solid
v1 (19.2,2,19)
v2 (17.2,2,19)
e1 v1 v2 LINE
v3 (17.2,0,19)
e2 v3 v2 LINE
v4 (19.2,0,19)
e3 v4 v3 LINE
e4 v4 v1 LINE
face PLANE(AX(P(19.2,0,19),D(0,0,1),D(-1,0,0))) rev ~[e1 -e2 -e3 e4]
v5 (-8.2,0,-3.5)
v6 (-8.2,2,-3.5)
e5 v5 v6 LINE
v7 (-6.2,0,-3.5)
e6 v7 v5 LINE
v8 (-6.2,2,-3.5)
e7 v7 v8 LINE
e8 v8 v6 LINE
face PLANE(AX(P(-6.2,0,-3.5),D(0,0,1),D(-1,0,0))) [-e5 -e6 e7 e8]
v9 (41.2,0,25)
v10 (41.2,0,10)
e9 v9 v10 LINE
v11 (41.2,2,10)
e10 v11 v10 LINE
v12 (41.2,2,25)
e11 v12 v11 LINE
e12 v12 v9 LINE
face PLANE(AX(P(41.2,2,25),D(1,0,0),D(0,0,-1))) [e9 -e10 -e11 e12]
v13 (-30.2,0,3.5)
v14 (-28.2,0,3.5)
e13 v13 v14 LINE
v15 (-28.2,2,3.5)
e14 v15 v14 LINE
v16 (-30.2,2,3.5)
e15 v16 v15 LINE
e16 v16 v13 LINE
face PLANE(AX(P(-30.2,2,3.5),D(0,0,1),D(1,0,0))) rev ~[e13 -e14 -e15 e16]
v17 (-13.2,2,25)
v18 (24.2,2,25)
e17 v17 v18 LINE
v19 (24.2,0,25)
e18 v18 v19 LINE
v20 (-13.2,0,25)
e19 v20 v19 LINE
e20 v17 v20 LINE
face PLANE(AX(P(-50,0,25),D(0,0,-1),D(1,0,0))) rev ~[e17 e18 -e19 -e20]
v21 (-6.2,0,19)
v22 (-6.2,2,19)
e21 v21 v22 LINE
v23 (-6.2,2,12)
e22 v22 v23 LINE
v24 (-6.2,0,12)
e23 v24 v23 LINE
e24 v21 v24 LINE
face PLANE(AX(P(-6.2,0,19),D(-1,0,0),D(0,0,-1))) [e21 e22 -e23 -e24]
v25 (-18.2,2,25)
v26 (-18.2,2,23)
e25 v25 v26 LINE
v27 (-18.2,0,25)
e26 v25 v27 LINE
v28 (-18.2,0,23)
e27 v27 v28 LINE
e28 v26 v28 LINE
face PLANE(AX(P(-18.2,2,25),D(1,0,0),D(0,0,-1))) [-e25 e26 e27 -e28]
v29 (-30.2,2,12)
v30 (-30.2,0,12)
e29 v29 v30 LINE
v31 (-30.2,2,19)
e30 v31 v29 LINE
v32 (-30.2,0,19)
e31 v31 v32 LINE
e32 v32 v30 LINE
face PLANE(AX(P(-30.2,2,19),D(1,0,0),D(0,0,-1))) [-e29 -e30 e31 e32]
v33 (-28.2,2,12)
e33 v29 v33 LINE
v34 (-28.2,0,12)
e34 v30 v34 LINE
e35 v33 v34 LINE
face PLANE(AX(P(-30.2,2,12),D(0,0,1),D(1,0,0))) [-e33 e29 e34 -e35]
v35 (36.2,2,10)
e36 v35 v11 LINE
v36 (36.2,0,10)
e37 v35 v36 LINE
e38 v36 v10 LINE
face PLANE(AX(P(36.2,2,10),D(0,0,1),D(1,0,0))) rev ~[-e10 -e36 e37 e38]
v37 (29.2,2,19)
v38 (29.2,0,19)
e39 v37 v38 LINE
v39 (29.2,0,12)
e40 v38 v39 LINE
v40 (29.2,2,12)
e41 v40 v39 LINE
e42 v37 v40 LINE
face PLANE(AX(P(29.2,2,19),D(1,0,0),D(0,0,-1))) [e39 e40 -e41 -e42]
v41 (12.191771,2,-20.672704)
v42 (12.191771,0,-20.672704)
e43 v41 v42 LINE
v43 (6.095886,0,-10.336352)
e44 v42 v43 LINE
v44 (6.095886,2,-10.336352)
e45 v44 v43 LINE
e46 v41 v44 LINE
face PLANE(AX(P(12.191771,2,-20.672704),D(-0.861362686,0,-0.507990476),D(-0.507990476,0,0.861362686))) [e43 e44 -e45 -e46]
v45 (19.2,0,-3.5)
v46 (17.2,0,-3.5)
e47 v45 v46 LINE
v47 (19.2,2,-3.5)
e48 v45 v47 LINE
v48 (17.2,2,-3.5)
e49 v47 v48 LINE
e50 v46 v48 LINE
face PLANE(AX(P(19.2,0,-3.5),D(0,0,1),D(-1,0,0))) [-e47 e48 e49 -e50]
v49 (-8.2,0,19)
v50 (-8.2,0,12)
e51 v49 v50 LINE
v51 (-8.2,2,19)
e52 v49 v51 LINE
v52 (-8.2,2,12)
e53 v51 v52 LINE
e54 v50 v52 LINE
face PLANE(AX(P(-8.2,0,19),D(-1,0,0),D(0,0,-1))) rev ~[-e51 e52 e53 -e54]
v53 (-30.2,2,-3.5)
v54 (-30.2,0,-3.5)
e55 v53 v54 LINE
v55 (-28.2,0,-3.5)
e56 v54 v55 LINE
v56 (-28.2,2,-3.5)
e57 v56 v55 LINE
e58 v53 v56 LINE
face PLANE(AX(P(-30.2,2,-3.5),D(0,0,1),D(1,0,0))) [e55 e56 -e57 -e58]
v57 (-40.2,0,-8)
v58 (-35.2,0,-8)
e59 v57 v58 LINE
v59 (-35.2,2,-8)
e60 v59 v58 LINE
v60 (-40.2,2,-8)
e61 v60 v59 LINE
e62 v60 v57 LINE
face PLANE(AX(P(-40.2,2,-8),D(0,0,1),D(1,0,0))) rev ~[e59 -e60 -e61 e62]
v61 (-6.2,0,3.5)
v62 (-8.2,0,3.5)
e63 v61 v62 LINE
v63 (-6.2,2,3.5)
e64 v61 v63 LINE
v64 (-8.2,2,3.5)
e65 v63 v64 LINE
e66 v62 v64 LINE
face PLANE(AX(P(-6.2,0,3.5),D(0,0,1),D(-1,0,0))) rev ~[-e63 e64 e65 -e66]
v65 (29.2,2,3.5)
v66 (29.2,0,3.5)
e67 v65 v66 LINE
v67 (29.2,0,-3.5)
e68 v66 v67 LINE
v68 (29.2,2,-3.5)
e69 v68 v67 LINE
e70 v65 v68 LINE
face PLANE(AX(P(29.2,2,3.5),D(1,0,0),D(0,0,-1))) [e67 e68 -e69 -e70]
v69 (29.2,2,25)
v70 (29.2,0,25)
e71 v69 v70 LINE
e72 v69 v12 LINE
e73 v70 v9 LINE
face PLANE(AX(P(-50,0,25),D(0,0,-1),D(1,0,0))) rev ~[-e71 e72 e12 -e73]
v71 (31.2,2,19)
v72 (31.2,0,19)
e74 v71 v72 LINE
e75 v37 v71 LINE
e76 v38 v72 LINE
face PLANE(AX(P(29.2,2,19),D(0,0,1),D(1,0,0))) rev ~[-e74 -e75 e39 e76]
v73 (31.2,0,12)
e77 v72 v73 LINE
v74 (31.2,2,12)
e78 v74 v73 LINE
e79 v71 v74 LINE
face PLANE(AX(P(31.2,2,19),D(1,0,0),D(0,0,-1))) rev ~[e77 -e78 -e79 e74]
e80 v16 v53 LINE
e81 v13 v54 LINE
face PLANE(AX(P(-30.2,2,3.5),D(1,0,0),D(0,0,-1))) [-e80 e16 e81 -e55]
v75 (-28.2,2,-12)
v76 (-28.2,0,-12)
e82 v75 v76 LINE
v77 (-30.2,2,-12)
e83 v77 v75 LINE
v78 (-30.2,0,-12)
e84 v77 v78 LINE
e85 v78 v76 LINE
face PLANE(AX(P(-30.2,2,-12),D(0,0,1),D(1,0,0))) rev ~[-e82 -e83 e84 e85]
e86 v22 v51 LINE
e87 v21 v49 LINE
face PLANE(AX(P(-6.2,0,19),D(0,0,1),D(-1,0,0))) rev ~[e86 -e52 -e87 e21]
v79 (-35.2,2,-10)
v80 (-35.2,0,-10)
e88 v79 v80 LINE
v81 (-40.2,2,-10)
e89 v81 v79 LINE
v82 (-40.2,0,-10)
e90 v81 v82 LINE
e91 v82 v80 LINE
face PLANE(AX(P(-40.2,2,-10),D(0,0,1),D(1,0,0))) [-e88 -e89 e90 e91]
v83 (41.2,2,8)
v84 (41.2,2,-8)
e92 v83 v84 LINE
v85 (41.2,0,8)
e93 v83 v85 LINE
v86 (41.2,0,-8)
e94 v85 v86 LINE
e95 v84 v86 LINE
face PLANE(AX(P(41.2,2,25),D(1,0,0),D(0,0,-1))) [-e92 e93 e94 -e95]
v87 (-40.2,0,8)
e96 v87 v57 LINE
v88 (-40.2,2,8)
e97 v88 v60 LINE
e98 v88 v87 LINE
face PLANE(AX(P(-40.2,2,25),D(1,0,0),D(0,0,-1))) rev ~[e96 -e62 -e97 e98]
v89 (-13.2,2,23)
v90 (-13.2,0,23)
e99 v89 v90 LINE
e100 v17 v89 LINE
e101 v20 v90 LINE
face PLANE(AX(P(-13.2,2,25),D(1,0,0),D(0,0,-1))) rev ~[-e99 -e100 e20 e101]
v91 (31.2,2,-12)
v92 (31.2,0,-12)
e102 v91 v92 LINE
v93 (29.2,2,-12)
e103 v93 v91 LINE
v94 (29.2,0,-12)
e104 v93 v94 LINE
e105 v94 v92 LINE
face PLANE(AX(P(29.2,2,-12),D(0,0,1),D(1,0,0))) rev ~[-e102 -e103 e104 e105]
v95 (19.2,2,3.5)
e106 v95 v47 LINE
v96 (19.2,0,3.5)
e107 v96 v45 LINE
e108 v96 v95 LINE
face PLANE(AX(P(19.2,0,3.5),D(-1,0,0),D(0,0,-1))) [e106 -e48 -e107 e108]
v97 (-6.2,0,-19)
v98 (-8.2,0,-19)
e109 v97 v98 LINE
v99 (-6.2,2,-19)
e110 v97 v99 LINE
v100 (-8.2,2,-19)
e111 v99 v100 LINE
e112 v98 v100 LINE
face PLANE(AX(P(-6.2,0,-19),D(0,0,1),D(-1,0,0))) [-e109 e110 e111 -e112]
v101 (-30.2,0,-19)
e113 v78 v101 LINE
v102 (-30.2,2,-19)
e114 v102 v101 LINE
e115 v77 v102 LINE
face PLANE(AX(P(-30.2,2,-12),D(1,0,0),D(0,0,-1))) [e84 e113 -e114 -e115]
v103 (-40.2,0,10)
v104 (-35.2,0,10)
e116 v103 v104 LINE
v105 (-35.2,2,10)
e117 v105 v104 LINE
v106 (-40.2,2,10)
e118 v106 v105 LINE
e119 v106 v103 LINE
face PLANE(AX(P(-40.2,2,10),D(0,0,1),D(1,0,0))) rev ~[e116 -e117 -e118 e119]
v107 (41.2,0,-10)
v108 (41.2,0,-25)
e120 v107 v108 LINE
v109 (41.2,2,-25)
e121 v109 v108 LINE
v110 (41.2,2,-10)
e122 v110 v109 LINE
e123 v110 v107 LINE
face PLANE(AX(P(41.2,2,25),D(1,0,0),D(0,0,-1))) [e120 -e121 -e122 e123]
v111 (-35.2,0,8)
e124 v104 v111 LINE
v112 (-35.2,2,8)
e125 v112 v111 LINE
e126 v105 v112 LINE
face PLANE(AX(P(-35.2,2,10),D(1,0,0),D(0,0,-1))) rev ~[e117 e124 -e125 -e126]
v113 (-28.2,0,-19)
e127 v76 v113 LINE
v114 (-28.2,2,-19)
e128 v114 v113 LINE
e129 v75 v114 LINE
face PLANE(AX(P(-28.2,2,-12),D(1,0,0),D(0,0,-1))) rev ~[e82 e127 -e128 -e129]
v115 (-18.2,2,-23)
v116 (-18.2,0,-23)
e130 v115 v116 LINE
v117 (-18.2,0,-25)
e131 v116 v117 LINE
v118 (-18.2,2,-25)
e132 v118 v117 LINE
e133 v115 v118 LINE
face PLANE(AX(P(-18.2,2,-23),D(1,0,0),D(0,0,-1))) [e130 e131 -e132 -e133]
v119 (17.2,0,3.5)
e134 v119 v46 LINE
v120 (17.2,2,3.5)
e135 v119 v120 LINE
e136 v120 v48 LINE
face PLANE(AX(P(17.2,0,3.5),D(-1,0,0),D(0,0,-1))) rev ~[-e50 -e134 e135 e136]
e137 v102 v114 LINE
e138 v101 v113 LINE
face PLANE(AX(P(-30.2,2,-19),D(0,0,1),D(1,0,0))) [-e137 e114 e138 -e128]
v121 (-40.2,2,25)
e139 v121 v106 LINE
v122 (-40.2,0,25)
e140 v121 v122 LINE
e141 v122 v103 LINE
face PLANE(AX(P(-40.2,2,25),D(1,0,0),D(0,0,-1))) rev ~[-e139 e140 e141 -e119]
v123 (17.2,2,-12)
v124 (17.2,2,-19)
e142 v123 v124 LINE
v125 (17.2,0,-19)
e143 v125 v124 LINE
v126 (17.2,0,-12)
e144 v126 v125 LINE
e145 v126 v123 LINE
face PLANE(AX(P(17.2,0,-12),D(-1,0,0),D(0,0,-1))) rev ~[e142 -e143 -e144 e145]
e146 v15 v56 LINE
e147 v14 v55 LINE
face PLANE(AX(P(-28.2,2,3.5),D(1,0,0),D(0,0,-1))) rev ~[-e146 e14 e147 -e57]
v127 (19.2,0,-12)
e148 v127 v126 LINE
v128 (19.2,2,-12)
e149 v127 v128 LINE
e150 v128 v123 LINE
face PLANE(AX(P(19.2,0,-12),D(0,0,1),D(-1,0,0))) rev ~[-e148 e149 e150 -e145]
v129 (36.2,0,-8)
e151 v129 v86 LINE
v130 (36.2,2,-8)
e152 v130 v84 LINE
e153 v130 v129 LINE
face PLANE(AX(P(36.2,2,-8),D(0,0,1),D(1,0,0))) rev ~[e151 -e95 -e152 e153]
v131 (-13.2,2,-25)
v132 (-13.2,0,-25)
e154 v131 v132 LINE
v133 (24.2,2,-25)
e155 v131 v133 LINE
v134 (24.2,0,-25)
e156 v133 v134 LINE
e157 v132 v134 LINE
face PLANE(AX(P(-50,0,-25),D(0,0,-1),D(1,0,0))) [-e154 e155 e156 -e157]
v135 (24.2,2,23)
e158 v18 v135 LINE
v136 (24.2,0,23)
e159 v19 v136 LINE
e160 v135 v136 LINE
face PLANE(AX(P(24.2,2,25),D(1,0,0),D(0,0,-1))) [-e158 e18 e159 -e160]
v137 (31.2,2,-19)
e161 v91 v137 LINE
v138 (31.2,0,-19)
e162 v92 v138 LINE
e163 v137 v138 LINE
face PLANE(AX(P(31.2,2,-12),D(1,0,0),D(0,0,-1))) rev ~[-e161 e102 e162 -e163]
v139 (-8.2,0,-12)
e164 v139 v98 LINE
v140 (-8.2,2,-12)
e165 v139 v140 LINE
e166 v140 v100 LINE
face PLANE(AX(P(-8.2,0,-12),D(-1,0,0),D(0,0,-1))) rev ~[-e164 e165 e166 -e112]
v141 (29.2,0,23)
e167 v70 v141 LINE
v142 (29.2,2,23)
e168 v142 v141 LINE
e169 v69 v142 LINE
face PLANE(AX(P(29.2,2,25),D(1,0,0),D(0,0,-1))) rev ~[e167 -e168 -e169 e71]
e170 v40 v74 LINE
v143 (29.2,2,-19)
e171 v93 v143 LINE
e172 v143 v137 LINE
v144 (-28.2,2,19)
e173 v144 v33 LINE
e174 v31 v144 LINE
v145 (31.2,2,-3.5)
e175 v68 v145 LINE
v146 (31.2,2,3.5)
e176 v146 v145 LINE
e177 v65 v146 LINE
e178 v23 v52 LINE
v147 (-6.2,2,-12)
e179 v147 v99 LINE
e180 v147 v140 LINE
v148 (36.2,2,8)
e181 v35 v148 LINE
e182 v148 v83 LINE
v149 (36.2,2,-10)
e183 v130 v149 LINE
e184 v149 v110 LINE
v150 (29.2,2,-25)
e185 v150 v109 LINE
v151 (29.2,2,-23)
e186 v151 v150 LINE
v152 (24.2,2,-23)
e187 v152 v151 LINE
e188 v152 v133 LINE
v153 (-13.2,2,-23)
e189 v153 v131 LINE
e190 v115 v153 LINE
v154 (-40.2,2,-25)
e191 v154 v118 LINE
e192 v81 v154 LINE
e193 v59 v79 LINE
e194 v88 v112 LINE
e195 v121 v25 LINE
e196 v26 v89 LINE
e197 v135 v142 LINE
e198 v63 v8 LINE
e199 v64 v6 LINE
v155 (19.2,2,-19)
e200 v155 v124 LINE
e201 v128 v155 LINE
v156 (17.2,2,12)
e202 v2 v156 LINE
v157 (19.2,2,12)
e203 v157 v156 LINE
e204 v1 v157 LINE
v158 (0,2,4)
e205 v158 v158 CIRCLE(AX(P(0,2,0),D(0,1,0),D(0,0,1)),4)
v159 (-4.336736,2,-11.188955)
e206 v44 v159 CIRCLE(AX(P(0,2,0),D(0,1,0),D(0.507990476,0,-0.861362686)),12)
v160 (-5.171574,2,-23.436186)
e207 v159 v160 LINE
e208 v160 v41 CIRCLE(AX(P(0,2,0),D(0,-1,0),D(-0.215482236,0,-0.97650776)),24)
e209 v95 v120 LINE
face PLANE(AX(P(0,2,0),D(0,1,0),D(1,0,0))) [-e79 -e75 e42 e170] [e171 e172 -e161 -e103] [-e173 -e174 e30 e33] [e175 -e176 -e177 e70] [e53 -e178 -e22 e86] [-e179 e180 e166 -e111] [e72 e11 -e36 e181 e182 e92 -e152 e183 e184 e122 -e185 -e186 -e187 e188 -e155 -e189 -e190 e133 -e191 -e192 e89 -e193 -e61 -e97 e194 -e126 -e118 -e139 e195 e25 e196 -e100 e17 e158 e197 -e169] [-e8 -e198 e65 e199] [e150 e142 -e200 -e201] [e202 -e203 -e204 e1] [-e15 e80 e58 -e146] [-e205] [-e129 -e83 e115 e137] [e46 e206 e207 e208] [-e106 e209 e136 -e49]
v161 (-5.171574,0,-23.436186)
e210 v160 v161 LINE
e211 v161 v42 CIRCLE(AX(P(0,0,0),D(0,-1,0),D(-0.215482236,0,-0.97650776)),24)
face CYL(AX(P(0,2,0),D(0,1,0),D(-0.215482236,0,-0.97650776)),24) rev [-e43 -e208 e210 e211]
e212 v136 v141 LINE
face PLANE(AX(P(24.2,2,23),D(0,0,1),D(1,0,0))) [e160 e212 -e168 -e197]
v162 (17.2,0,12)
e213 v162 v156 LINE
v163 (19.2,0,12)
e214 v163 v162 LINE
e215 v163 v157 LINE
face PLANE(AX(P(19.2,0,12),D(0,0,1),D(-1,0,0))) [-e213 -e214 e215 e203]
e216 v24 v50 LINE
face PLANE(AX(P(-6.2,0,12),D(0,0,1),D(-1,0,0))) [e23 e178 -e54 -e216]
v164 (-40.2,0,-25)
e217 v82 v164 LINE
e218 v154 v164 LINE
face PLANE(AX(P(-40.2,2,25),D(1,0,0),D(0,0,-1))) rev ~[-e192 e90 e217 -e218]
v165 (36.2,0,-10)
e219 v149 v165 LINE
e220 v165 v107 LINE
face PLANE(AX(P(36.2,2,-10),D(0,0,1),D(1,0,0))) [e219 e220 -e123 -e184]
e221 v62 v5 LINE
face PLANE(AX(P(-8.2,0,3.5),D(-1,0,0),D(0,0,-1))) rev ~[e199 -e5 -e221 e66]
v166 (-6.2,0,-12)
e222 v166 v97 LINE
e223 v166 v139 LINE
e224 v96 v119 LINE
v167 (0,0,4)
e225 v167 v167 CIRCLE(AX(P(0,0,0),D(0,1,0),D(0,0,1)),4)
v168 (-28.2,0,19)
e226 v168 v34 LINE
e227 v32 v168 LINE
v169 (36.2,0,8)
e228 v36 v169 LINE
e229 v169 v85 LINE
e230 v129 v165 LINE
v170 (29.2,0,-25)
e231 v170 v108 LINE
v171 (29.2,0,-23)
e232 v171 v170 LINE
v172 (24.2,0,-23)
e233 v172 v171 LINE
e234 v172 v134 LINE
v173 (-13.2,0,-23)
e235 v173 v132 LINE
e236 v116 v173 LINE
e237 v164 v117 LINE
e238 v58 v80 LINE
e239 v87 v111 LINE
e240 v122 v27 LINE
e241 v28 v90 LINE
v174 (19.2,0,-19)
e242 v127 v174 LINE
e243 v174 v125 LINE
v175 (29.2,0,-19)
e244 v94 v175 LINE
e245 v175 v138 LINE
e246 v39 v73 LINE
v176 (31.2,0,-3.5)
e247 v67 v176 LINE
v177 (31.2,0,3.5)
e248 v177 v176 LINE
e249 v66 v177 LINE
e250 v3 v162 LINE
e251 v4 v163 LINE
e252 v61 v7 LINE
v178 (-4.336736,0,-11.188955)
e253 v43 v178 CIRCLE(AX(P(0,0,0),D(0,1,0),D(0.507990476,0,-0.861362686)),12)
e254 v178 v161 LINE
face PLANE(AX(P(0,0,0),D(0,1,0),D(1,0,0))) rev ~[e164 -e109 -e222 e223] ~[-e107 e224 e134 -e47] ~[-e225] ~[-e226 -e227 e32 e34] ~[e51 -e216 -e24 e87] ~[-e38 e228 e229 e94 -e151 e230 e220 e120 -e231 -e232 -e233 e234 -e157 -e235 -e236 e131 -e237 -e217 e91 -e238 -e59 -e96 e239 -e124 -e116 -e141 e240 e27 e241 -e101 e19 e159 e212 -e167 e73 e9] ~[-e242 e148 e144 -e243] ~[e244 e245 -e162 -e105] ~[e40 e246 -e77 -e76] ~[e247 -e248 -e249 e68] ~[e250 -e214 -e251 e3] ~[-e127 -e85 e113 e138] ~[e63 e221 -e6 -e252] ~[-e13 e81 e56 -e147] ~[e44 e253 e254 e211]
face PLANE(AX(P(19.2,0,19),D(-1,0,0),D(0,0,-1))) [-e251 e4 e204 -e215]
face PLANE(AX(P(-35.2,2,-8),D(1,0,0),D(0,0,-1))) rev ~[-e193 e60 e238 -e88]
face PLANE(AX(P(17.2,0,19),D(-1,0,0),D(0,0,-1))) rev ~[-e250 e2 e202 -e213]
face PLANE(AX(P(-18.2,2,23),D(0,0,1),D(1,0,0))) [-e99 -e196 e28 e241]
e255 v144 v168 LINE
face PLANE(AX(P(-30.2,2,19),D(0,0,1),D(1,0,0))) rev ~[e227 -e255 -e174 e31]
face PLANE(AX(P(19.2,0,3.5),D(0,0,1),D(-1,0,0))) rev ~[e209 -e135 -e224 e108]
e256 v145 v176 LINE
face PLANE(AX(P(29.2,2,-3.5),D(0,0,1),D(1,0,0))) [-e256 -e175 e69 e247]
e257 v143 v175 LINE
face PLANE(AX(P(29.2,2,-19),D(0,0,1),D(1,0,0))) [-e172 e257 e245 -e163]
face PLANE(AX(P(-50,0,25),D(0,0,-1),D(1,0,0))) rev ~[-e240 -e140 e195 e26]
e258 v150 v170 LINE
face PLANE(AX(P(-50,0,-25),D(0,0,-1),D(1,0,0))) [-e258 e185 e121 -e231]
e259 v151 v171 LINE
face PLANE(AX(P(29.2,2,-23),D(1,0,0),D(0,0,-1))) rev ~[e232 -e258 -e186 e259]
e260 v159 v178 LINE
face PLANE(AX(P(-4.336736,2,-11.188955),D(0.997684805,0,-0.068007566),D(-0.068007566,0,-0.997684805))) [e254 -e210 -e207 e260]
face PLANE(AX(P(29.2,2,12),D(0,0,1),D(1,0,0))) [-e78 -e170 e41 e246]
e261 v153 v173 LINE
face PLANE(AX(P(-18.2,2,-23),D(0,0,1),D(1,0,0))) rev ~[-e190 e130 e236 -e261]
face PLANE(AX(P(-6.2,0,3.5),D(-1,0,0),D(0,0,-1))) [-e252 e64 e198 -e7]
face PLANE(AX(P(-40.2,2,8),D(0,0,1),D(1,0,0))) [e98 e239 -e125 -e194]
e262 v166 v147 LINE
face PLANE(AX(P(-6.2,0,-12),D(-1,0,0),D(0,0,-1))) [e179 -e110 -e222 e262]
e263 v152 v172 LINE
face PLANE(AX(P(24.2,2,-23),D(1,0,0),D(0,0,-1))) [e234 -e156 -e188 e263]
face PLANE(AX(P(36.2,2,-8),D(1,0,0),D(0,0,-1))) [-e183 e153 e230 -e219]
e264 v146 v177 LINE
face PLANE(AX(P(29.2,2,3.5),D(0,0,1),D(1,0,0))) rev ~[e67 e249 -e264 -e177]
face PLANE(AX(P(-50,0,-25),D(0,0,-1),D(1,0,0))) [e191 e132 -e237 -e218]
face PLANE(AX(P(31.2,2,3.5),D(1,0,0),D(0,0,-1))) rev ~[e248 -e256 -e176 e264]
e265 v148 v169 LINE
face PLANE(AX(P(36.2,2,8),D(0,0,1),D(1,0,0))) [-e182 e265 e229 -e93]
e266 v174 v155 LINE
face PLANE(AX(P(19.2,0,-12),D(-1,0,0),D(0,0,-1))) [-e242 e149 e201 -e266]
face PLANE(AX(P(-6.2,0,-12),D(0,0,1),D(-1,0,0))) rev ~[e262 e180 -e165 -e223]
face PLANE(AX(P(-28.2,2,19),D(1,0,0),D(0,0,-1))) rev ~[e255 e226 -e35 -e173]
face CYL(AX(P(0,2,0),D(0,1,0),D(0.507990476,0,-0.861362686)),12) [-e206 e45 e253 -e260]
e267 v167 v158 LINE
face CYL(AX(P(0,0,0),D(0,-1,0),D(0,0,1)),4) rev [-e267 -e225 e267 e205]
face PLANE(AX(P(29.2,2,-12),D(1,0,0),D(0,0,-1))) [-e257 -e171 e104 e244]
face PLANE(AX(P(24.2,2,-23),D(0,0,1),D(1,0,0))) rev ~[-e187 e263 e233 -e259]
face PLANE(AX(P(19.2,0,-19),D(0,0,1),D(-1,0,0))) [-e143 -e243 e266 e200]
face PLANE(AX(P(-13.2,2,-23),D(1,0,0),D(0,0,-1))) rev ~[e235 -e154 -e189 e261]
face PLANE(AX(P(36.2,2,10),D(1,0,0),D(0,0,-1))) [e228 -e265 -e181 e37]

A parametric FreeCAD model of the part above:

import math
import FreeCAD as App
import Part
import Sketcher

V = App.Vector
Q = App.Units.Quantity

doc = App.newDocument("Part")
body = doc.addObject("PartDesign::Body", "Body")

# Sketch on XZ plane
sketch1 = body.newObject("Sketcher::SketchObject", "Sketch")
sketch1.AttachmentSupport = (doc.getObject("XZ_Plane"), [""])
sketch1.MapMode = "FlatFace"
sketch1.addGeometry(Part.LineSegment(V(-50, -25, 0), V(-50, 25, 0)), False)
sketch1.addGeometry(Part.LineSegment(V(-50, 25, 0), V(50, 25, 0)), False)
sketch1.addGeometry(Part.LineSegment(V(50, 25, 0), V(50, -25, 0)), False)
sketch1.addGeometry(Part.LineSegment(V(50, -25, 0), V(-50, -25, 0)), False)
sketch1.addGeometry(Part.Circle(V(0, 0, 0), V(0, 0, 1), 4), False)
sketch1.addConstraint(Sketcher.Constraint("Coincident", 0, 2, 1, 1))
sketch1.addConstraint(Sketcher.Constraint("Coincident", 1, 2, 2, 1))
sketch1.addConstraint(Sketcher.Constraint("Coincident", 2, 2, 3, 1))
sketch1.addConstraint(Sketcher.Constraint("Coincident", 3, 2, 0, 1))
sketch1.addConstraint(Sketcher.Constraint("Vertical", 0))
sketch1.addConstraint(Sketcher.Constraint("Horizontal", 1))
sketch1.addConstraint(Sketcher.Constraint("Vertical", 2))
sketch1.addConstraint(Sketcher.Constraint("Horizontal", 3))
sketch1.addConstraint(Sketcher.Constraint("Coincident", 4, 3, -1, 1))
sketch1.addConstraint(Sketcher.Constraint("Symmetric", 0, 2, 2, 2, -1, 1))
sketch1.addConstraint(Sketcher.Constraint("Diameter", 4, Q("8 mm")))
sketch1.addConstraint(Sketcher.Constraint("DistanceX", 1, 1, 1, 2, Q("100 mm")))
sketch1.addConstraint(Sketcher.Constraint("DistanceY", 0, 1, 0, 2, Q("50 mm")))
pad1 = body.newObject("PartDesign::Pad", "Pad")
pad1.Profile = sketch1
pad1.Length = 2
pad1.Reversed = True

# Sketch on XZ plane
sketch2 = body.newObject("Sketcher::SketchObject", "Sketch001")
sketch2.AttachmentSupport = (doc.getObject("XZ_Plane"), [""])
sketch2.MapMode = "FlatFace"
sketch2.addGeometry(Part.LineSegment(V(19.2, 12, 0), V(19.2, 19, 0)), False)
sketch2.addGeometry(Part.LineSegment(V(19.2, 19, 0), V(17.2, 19, 0)), False)
sketch2.addGeometry(Part.LineSegment(V(17.2, 19, 0), V(17.2, 12, 0)), False)
sketch2.addGeometry(Part.LineSegment(V(17.2, 12, 0), V(19.2, 12, 0)), False)
sketch2.addGeometry(Part.LineSegment(V(19.2, -3.5, 0), V(19.2, 3.5, 0)), False)
sketch2.addGeometry(Part.LineSegment(V(19.2, 3.5, 0), V(17.2, 3.5, 0)), False)
sketch2.addGeometry(Part.LineSegment(V(17.2, 3.5, 0), V(17.2, -3.5, 0)), False)
sketch2.addGeometry(Part.LineSegment(V(17.2, -3.5, 0), V(19.2, -3.5, 0)), False)
sketch2.addGeometry(Part.LineSegment(V(19.2, -19, 0), V(19.2, -12, 0)), False)
sketch2.addGeometry(Part.LineSegment(V(19.2, -12, 0), V(17.2, -12, 0)), False)
sketch2.addGeometry(Part.LineSegment(V(17.2, -12, 0), V(17.2, -19, 0)), False)
sketch2.addGeometry(Part.LineSegment(V(17.2, -19, 0), V(19.2, -19, 0)), False)
sketch2.addGeometry(Part.LineSegment(V(-6.2, -19, 0), V(-6.2, -12, 0)), False)
sketch2.addGeometry(Part.LineSegment(V(-6.2, -12, 0), V(-8.2, -12, 0)), False)
sketch2.addGeometry(Part.LineSegment(V(-8.2, -12, 0), V(-8.2, -19, 0)), False)
sketch2.addGeometry(Part.LineSegment(V(-8.2, -19, 0), V(-6.2, -19, 0)), False)
sketch2.addGeometry(Part.LineSegment(V(-6.2, -3.5, 0), V(-6.2, 3.5, 0)), False)
sketch2.addGeometry(Part.LineSegment(V(-6.2, 3.5, 0), V(-8.2, 3.5, 0)), False)
sketch2.addGeometry(Part.LineSegment(V(-8.2, 3.5, 0), V(-8.2, -3.5, 0)), False)
sketch2.addGeometry(Part.LineSegment(V(-8.2, -3.5, 0), V(-6.2, -3.5, 0)), False)
sketch2.addGeometry(Part.LineSegment(V(-6.2, 12, 0), V(-6.2, 19, 0)), False)
sketch2.addGeometry(Part.LineSegment(V(-6.2, 19, 0), V(-8.2, 19, 0)), False)
sketch2.addGeometry(Part.LineSegment(V(-8.2, 19, 0), V(-8.2, 12, 0)), False)
sketch2.addGeometry(Part.LineSegment(V(-8.2, 12, 0), V(-6.2, 12, 0)), False)
sketch2.addConstraint(Sketcher.Constraint("Coincident", 0, 2, 1, 1))
sketch2.addConstraint(Sketcher.Constraint("Coincident", 1, 2, 2, 1))
sketch2.addConstraint(Sketcher.Constraint("Coincident", 2, 2, 3, 1))
sketch2.addConstraint(Sketcher.Constraint("Coincident", 3, 2, 0, 1))
sketch2.addConstraint(Sketcher.Constraint("Coincident", 4, 2, 5, 1))
sketch2.addConstraint(Sketcher.Constraint("Coincident", 5, 2, 6, 1))
sketch2.addConstraint(Sketcher.Constraint("Coincident", 6, 2, 7, 1))
sketch2.addConstraint(Sketcher.Constraint("Coincident", 7, 2, 4, 1))
sketch2.addConstraint(Sketcher.Constraint("Coincident", 8, 2, 9, 1))
sketch2.addConstraint(Sketcher.Constraint("Coincident", 9, 2, 10, 1))
sketch2.addConstraint(Sketcher.Constraint("Coincident", 10, 2, 11, 1))
sketch2.addConstraint(Sketcher.Constraint("Coincident", 11, 2, 8, 1))
sketch2.addConstraint(Sketcher.Constraint("Coincident", 12, 2, 13, 1))
sketch2.addConstraint(Sketcher.Constraint("Coincident", 13, 2, 14, 1))
sketch2.addConstraint(Sketcher.Constraint("Coincident", 14, 2, 15, 1))
sketch2.addConstraint(Sketcher.Constraint("Coincident", 15, 2, 12, 1))
sketch2.addConstraint(Sketcher.Constraint("Coincident", 16, 2, 17, 1))
sketch2.addConstraint(Sketcher.Constraint("Coincident", 17, 2, 18, 1))
sketch2.addConstraint(Sketcher.Constraint("Coincident", 18, 2, 19, 1))
sketch2.addConstraint(Sketcher.Constraint("Coincident", 19, 2, 16, 1))
sketch2.addConstraint(Sketcher.Constraint("Coincident", 20, 2, 21, 1))
sketch2.addConstraint(Sketcher.Constraint("Coincident", 21, 2, 22, 1))
sketch2.addConstraint(Sketcher.Constraint("Coincident", 22, 2, 23, 1))
sketch2.addConstraint(Sketcher.Constraint("Coincident", 23, 2, 20, 1))
sketch2.addConstraint(Sketcher.Constraint("Vertical", 0))
sketch2.addConstraint(Sketcher.Constraint("Horizontal", 1))
sketch2.addConstraint(Sketcher.Constraint("Vertical", 2))
sketch2.addConstraint(Sketcher.Constraint("Horizontal", 3))
sketch2.addConstraint(Sketcher.Constraint("Vertical", 4))
sketch2.addConstraint(Sketcher.Constraint("Horizontal", 5))
sketch2.addConstraint(Sketcher.Constraint("Vertical", 6))
sketch2.addConstraint(Sketcher.Constraint("Horizontal", 7))
sketch2.addConstraint(Sketcher.Constraint("Vertical", 8))
sketch2.addConstraint(Sketcher.Constraint("Horizontal", 9))
sketch2.addConstraint(Sketcher.Constraint("Vertical", 10))
sketch2.addConstraint(Sketcher.Constraint("Horizontal", 11))
sketch2.addConstraint(Sketcher.Constraint("Vertical", 12))
sketch2.addConstraint(Sketcher.Constraint("Horizontal", 13))
sketch2.addConstraint(Sketcher.Constraint("Vertical", 14))
sketch2.addConstraint(Sketcher.Constraint("Horizontal", 15))
sketch2.addConstraint(Sketcher.Constraint("Vertical", 16))
sketch2.addConstraint(Sketcher.Constraint("Horizontal", 17))
sketch2.addConstraint(Sketcher.Constraint("Vertical", 18))
sketch2.addConstraint(Sketcher.Constraint("Horizontal", 19))
sketch2.addConstraint(Sketcher.Constraint("Vertical", 20))
sketch2.addConstraint(Sketcher.Constraint("Horizontal", 21))
sketch2.addConstraint(Sketcher.Constraint("Vertical", 22))
sketch2.addConstraint(Sketcher.Constraint("Horizontal", 23))
sketch2.addConstraint(Sketcher.Constraint("Symmetric", 3, 2, 8, 2, -1))
sketch2.addConstraint(Sketcher.Constraint("Symmetric", 1, 2, 10, 2, -1))
sketch2.addConstraint(Sketcher.Constraint("Symmetric", 15, 2, 20, 2, -1))
sketch2.addConstraint(Sketcher.Constraint("Symmetric", 13, 2, 22, 2, -1))
sketch2.addConstraint(Sketcher.Constraint("Horizontal", 9, 2, 12, 2))
sketch2.addConstraint(Sketcher.Constraint("Horizontal", 11, 2, 14, 2))
sketch2.addConstraint(Sketcher.Constraint("Horizontal", 5, 2, 16, 2))
sketch2.addConstraint(Sketcher.Constraint("Horizontal", 7, 2, 18, 2))
sketch2.addConstraint(Sketcher.Constraint("Vertical", 3, 2, 4, 2))
sketch2.addConstraint(Sketcher.Constraint("Vertical", 2, 2, 5, 2))
sketch2.addConstraint(Sketcher.Constraint("Vertical", 15, 2, 16, 2))
sketch2.addConstraint(Sketcher.Constraint("Vertical", 14, 2, 17, 2))
sketch2.addConstraint(Sketcher.Constraint("Equal", 11, 13))
sketch2.addConstraint(Sketcher.Constraint("Equal", 2, 4))
sketch2.addConstraint(Sketcher.Constraint("DistanceX", 1, 2, 1, 1, Q("2 mm")))
sketch2.addConstraint(Sketcher.Constraint("DistanceY", 0, 1, 0, 2, Q("7 mm")))
sketch2.addConstraint(Sketcher.Constraint("DistanceY", -1, 1, 0, 2, Q("19 mm")))
sketch2.addConstraint(Sketcher.Constraint("DistanceX", -1, 1, 0, 2, Q("19.2 mm")))
sketch2.addConstraint(Sketcher.Constraint("DistanceY", -1, 1, 4, 2, Q("3.5 mm")))
sketch2.addConstraint(Sketcher.Constraint("DistanceX", 12, 2, -1, 1, Q("6.2 mm")))
pocket1 = body.newObject("PartDesign::Pocket", "Pocket")
pocket1.Profile = sketch2
pocket1.Length = 2

# Sketch on XZ plane
sketch3 = body.newObject("Sketcher::SketchObject", "Sketch002")
sketch3.AttachmentSupport = (doc.getObject("XZ_Plane"), [""])
sketch3.MapMode = "FlatFace"
sketch3.AttachmentOffset = App.Placement(V(0, 0, -2), App.Rotation())
sketch3.addGeometry(Part.ArcOfCircle(Part.Circle(V(0, 0, 0), V(0, 0, 1), 24), math.radians(-102.443821), math.radians(-59.469931)), False)
sketch3.addGeometry(Part.LineSegment(V(-5.171574, -23.436186, 0), V(-4.336736, -11.188955, 0)), False)
sketch3.addGeometry(Part.ArcOfCircle(Part.Circle(V(0, 0, 0), V(0, 0, 1), 12), math.radians(-111.185874), math.radians(-59.469931)), False)
sketch3.addGeometry(Part.LineSegment(V(6.095886, -10.336352, 0), V(12.191771, -20.672704, 0)), False)
sketch3.addConstraint(Sketcher.Constraint("Coincident", 0, 1, 1, 1))
sketch3.addConstraint(Sketcher.Constraint("Coincident", 1, 2, 2, 1))
sketch3.addConstraint(Sketcher.Constraint("Coincident", 2, 2, 3, 1))
sketch3.addConstraint(Sketcher.Constraint("Coincident", 3, 2, 0, 2))
sketch3.addConstraint(Sketcher.Constraint("Coincident", 0, 3, -1, 1))
sketch3.addConstraint(Sketcher.Constraint("Coincident", 2, 3, -1, 1))
sketch3.addConstraint(Sketcher.Constraint("Radius", 0, Q("24 mm")))
sketch3.addConstraint(Sketcher.Constraint("Radius", 2, Q("12 mm")))
sketch3.addConstraint(Sketcher.Constraint("Distance", 1, Q("12.275652 mm")))
sketch3.addConstraint(Sketcher.Constraint("DistanceX", -1, 1, 3, 2, Q("12.191771 mm")))
sketch3.addConstraint(Sketcher.Constraint("DistanceY", 0, 1, 1, 2, Q("12.247231 mm")))
sketch3.addConstraint(Sketcher.Constraint("DistanceX", 0, 1, 2, 2, Q("11.267459 mm")))
pocket2 = body.newObject("PartDesign::Pocket", "Pocket001")
pocket2.Profile = sketch3
pocket2.Length = 2
pocket2.Reversed = True

# Sketch on XZ plane
sketch4 = body.newObject("Sketcher::SketchObject", "Sketch003")
sketch4.AttachmentSupport = (doc.getObject("XZ_Plane"), [""])
sketch4.MapMode = "FlatFace"
sketch4.AttachmentOffset = App.Placement(V(0, 0, -2), App.Rotation())
sketch4.addGeometry(Part.LineSegment(V(-18.2, 23, 0), V(-18.2, 25, 0)), False)
sketch4.addGeometry(Part.LineSegment(V(-18.2, 25, 0), V(-13.2, 25, 0)), False)
sketch4.addGeometry(Part.LineSegment(V(-13.2, 25, 0), V(-13.2, 23, 0)), False)
sketch4.addGeometry(Part.LineSegment(V(-13.2, 23, 0), V(-18.2, 23, 0)), False)
sketch4.addGeometry(Part.LineSegment(V(24.2, 23, 0), V(24.2, 25, 0)), False)
sketch4.addGeometry(Part.LineSegment(V(24.2, 25, 0), V(29.2, 25, 0)), False)
sketch4.addGeometry(Part.LineSegment(V(29.2, 25, 0), V(29.2, 23, 0)), False)
sketch4.addGeometry(Part.LineSegment(V(29.2, 23, 0), V(24.2, 23, 0)), False)
sketch4.addGeometry(Part.LineSegment(V(24.2, -25, 0), V(24.2, -23, 0)), False)
sketch4.addGeometry(Part.LineSegment(V(24.2, -23, 0), V(29.2, -23, 0)), False)
sketch4.addGeometry(Part.LineSegment(V(29.2, -23, 0), V(29.2, -25, 0)), False)
sketch4.addGeometry(Part.LineSegment(V(29.2, -25, 0), V(24.2, -25, 0)), False)
sketch4.addGeometry(Part.LineSegment(V(-18.2, -25, 0), V(-18.2, -23, 0)), False)
sketch4.addGeometry(Part.LineSegment(V(-18.2, -23, 0), V(-13.2, -23, 0)), False)
sketch4.addGeometry(Part.LineSegment(V(-13.2, -23, 0), V(-13.2, -25, 0)), False)
sketch4.addGeometry(Part.LineSegment(V(-13.2, -25, 0), V(-18.2, -25, 0)), False)
sketch4.addConstraint(Sketcher.Constraint("Coincident", 0, 2, 1, 1))
sketch4.addConstraint(Sketcher.Constraint("Coincident", 1, 2, 2, 1))
sketch4.addConstraint(Sketcher.Constraint("Coincident", 2, 2, 3, 1))
sketch4.addConstraint(Sketcher.Constraint("Coincident", 3, 2, 0, 1))
sketch4.addConstraint(Sketcher.Constraint("Coincident", 4, 2, 5, 1))
sketch4.addConstraint(Sketcher.Constraint("Coincident", 5, 2, 6, 1))
sketch4.addConstraint(Sketcher.Constraint("Coincident", 6, 2, 7, 1))
sketch4.addConstraint(Sketcher.Constraint("Coincident", 7, 2, 4, 1))
sketch4.addConstraint(Sketcher.Constraint("Coincident", 8, 2, 9, 1))
sketch4.addConstraint(Sketcher.Constraint("Coincident", 9, 2, 10, 1))
sketch4.addConstraint(Sketcher.Constraint("Coincident", 10, 2, 11, 1))
sketch4.addConstraint(Sketcher.Constraint("Coincident", 11, 2, 8, 1))
sketch4.addConstraint(Sketcher.Constraint("Coincident", 12, 2, 13, 1))
sketch4.addConstraint(Sketcher.Constraint("Coincident", 13, 2, 14, 1))
sketch4.addConstraint(Sketcher.Constraint("Coincident", 14, 2, 15, 1))
sketch4.addConstraint(Sketcher.Constraint("Coincident", 15, 2, 12, 1))
sketch4.addConstraint(Sketcher.Constraint("Vertical", 0))
sketch4.addConstraint(Sketcher.Constraint("Horizontal", 1))
sketch4.addConstraint(Sketcher.Constraint("Vertical", 2))
sketch4.addConstraint(Sketcher.Constraint("Horizontal", 3))
sketch4.addConstraint(Sketcher.Constraint("Vertical", 4))
sketch4.addConstraint(Sketcher.Constraint("Horizontal", 5))
sketch4.addConstraint(Sketcher.Constraint("Vertical", 6))
sketch4.addConstraint(Sketcher.Constraint("Horizontal", 7))
sketch4.addConstraint(Sketcher.Constraint("Vertical", 8))
sketch4.addConstraint(Sketcher.Constraint("Horizontal", 9))
sketch4.addConstraint(Sketcher.Constraint("Vertical", 10))
sketch4.addConstraint(Sketcher.Constraint("Horizontal", 11))
sketch4.addConstraint(Sketcher.Constraint("Vertical", 12))
sketch4.addConstraint(Sketcher.Constraint("Horizontal", 13))
sketch4.addConstraint(Sketcher.Constraint("Vertical", 14))
sketch4.addConstraint(Sketcher.Constraint("Horizontal", 15))
sketch4.addConstraint(Sketcher.Constraint("Symmetric", 7, 2, 8, 2, -1))
sketch4.addConstraint(Sketcher.Constraint("Symmetric", 5, 2, 10, 2, -1))
sketch4.addConstraint(Sketcher.Constraint("Symmetric", 3, 2, 12, 2, -1))
sketch4.addConstraint(Sketcher.Constraint("Symmetric", 1, 2, 14, 2, -1))
sketch4.addConstraint(Sketcher.Constraint("Horizontal", 1, 2, 4, 2))
sketch4.addConstraint(Sketcher.Constraint("Horizontal", 3, 2, 6, 2))
sketch4.addConstraint(Sketcher.Constraint("Equal", 3, 5))
sketch4.addConstraint(Sketcher.Constraint("DistanceX", 1, 1, 1, 2, Q("5 mm")))
sketch4.addConstraint(Sketcher.Constraint("DistanceY", 0, 1, 0, 2, Q("2 mm")))
sketch4.addConstraint(Sketcher.Constraint("DistanceY", -1, 1, 0, 2, Q("25 mm")))
sketch4.addConstraint(Sketcher.Constraint("DistanceX", 0, 2, -1, 1, Q("18.2 mm")))
sketch4.addConstraint(Sketcher.Constraint("DistanceX", -1, 1, 4, 2, Q("24.2 mm")))
pocket3 = body.newObject("PartDesign::Pocket", "Pocket002")
pocket3.Profile = sketch4
pocket3.Length = 2
pocket3.Reversed = True

# Sketch on XZ plane
sketch5 = body.newObject("Sketcher::SketchObject", "Sketch004")
sketch5.AttachmentSupport = (doc.getObject("XZ_Plane"), [""])
sketch5.MapMode = "FlatFace"
sketch5.AttachmentOffset = App.Placement(V(0, 0, -2), App.Rotation())
sketch5.addGeometry(Part.LineSegment(V(-50, -25, 0), V(-50, 25, 0)), False)
sketch5.addGeometry(Part.LineSegment(V(-50, 25, 0), V(-40.2, 25, 0)), False)
sketch5.addGeometry(Part.LineSegment(V(-40.2, 25, 0), V(-40.2, -25, 0)), False)
sketch5.addGeometry(Part.LineSegment(V(-40.2, -25, 0), V(-50, -25, 0)), False)
sketch5.addGeometry(Part.LineSegment(V(41.2, -25, 0), V(41.2, 25, 0)), False)
sketch5.addGeometry(Part.LineSegment(V(41.2, 25, 0), V(50, 25, 0)), False)
sketch5.addGeometry(Part.LineSegment(V(50, 25, 0), V(50, -25, 0)), False)
sketch5.addGeometry(Part.LineSegment(V(50, -25, 0), V(41.2, -25, 0)), False)
sketch5.addConstraint(Sketcher.Constraint("Coincident", 0, 2, 1, 1))
sketch5.addConstraint(Sketcher.Constraint("Coincident", 1, 2, 2, 1))
sketch5.addConstraint(Sketcher.Constraint("Coincident", 2, 2, 3, 1))
sketch5.addConstraint(Sketcher.Constraint("Coincident", 3, 2, 0, 1))
sketch5.addConstraint(Sketcher.Constraint("Coincident", 4, 2, 5, 1))
sketch5.addConstraint(Sketcher.Constraint("Coincident", 5, 2, 6, 1))
sketch5.addConstraint(Sketcher.Constraint("Coincident", 6, 2, 7, 1))
sketch5.addConstraint(Sketcher.Constraint("Coincident", 7, 2, 4, 1))
sketch5.addConstraint(Sketcher.Constraint("Vertical", 0))
sketch5.addConstraint(Sketcher.Constraint("Horizontal", 1))
sketch5.addConstraint(Sketcher.Constraint("Vertical", 2))
sketch5.addConstraint(Sketcher.Constraint("Horizontal", 3))
sketch5.addConstraint(Sketcher.Constraint("Vertical", 4))
sketch5.addConstraint(Sketcher.Constraint("Horizontal", 5))
sketch5.addConstraint(Sketcher.Constraint("Vertical", 6))
sketch5.addConstraint(Sketcher.Constraint("Horizontal", 7))
sketch5.addConstraint(Sketcher.Constraint("Symmetric", 3, 2, 5, 2, -1, 1))
sketch5.addConstraint(Sketcher.Constraint("Horizontal", 1, 2, 4, 2))
sketch5.addConstraint(Sketcher.Constraint("Horizontal", 3, 2, 6, 2))
sketch5.addConstraint(Sketcher.Constraint("DistanceY", 0, 1, 0, 2, Q("50 mm")))
sketch5.addConstraint(Sketcher.Constraint("DistanceX", 1, 1, 1, 2, Q("9.8 mm")))
sketch5.addConstraint(Sketcher.Constraint("DistanceX", 5, 1, 5, 2, Q("8.8 mm")))
sketch5.addConstraint(Sketcher.Constraint("DistanceX", 0, 2, -1, 1, Q("50 mm")))
pocket4 = body.newObject("PartDesign::Pocket", "Pocket003")
pocket4.Profile = sketch5
pocket4.Length = 6
pocket4.Reversed = True

# Sketch on XZ plane
sketch6 = body.newObject("Sketcher::SketchObject", "Sketch005")
sketch6.AttachmentSupport = (doc.getObject("XZ_Plane"), [""])
sketch6.MapMode = "FlatFace"
sketch6.AttachmentOffset = App.Placement(V(0, 0, -2), App.Rotation())
sketch6.addGeometry(Part.LineSegment(V(-30.2, -19, 0), V(-30.2, -12, 0)), False)
sketch6.addGeometry(Part.LineSegment(V(-30.2, -12, 0), V(-28.2, -12, 0)), False)
sketch6.addGeometry(Part.LineSegment(V(-28.2, -12, 0), V(-28.2, -19, 0)), False)
sketch6.addGeometry(Part.LineSegment(V(-28.2, -19, 0), V(-30.2, -19, 0)), False)
sketch6.addGeometry(Part.LineSegment(V(-30.2, -3.5, 0), V(-30.2, 3.5, 0)), False)
sketch6.addGeometry(Part.LineSegment(V(-30.2, 3.5, 0), V(-28.2, 3.5, 0)), False)
sketch6.addGeometry(Part.LineSegment(V(-28.2, 3.5, 0), V(-28.2, -3.5, 0)), False)
sketch6.addGeometry(Part.LineSegment(V(-28.2, -3.5, 0), V(-30.2, -3.5, 0)), False)
sketch6.addGeometry(Part.LineSegment(V(-30.2, 12, 0), V(-30.2, 19, 0)), False)
sketch6.addGeometry(Part.LineSegment(V(-30.2, 19, 0), V(-28.2, 19, 0)), False)
sketch6.addGeometry(Part.LineSegment(V(-28.2, 19, 0), V(-28.2, 12, 0)), False)
sketch6.addGeometry(Part.LineSegment(V(-28.2, 12, 0), V(-30.2, 12, 0)), False)
sketch6.addGeometry(Part.LineSegment(V(29.2, -19, 0), V(29.2, -12, 0)), False)
sketch6.addGeometry(Part.LineSegment(V(29.2, -12, 0), V(31.2, -12, 0)), False)
sketch6.addGeometry(Part.LineSegment(V(31.2, -12, 0), V(31.2, -19, 0)), False)
sketch6.addGeometry(Part.LineSegment(V(31.2, -19, 0), V(29.2, -19, 0)), False)
sketch6.addGeometry(Part.LineSegment(V(29.2, -3.5, 0), V(29.2, 3.5, 0)), False)
sketch6.addGeometry(Part.LineSegment(V(29.2, 3.5, 0), V(31.2, 3.5, 0)), False)
sketch6.addGeometry(Part.LineSegment(V(31.2, 3.5, 0), V(31.2, -3.5, 0)), False)
sketch6.addGeometry(Part.LineSegment(V(31.2, -3.5, 0), V(29.2, -3.5, 0)), False)
sketch6.addGeometry(Part.LineSegment(V(29.2, 12, 0), V(29.2, 19, 0)), False)
sketch6.addGeometry(Part.LineSegment(V(29.2, 19, 0), V(31.2, 19, 0)), False)
sketch6.addGeometry(Part.LineSegment(V(31.2, 19, 0), V(31.2, 12, 0)), False)
sketch6.addGeometry(Part.LineSegment(V(31.2, 12, 0), V(29.2, 12, 0)), False)
sketch6.addGeometry(Part.LineSegment(V(-40.2, -10, 0), V(-40.2, -8, 0)), False)
sketch6.addGeometry(Part.LineSegment(V(-40.2, -8, 0), V(-35.2, -8, 0)), False)
sketch6.addGeometry(Part.LineSegment(V(-35.2, -8, 0), V(-35.2, -10, 0)), False)
sketch6.addGeometry(Part.LineSegment(V(-35.2, -10, 0), V(-40.2, -10, 0)), False)
sketch6.addGeometry(Part.LineSegment(V(-40.2, 8, 0), V(-40.2, 10, 0)), False)
sketch6.addGeometry(Part.LineSegment(V(-40.2, 10, 0), V(-35.2, 10, 0)), False)
sketch6.addGeometry(Part.LineSegment(V(-35.2, 10, 0), V(-35.2, 8, 0)), False)
sketch6.addGeometry(Part.LineSegment(V(-35.2, 8, 0), V(-40.2, 8, 0)), False)
sketch6.addGeometry(Part.LineSegment(V(36.2, -10, 0), V(36.2, -8, 0)), False)
sketch6.addGeometry(Part.LineSegment(V(36.2, -8, 0), V(41.2, -8, 0)), False)
sketch6.addGeometry(Part.LineSegment(V(41.2, -8, 0), V(41.2, -10, 0)), False)
sketch6.addGeometry(Part.LineSegment(V(41.2, -10, 0), V(36.2, -10, 0)), False)
sketch6.addGeometry(Part.LineSegment(V(36.2, 8, 0), V(36.2, 10, 0)), False)
sketch6.addGeometry(Part.LineSegment(V(36.2, 10, 0), V(41.2, 10, 0)), False)
sketch6.addGeometry(Part.LineSegment(V(41.2, 10, 0), V(41.2, 8, 0)), False)
sketch6.addGeometry(Part.LineSegment(V(41.2, 8, 0), V(36.2, 8, 0)), False)
sketch6.addConstraint(Sketcher.Constraint("Coincident", 0, 2, 1, 1))
sketch6.addConstraint(Sketcher.Constraint("Coincident", 1, 2, 2, 1))
sketch6.addConstraint(Sketcher.Constraint("Coincident", 2, 2, 3, 1))
sketch6.addConstraint(Sketcher.Constraint("Coincident", 3, 2, 0, 1))
sketch6.addConstraint(Sketcher.Constraint("Coincident", 4, 2, 5, 1))
sketch6.addConstraint(Sketcher.Constraint("Coincident", 5, 2, 6, 1))
sketch6.addConstraint(Sketcher.Constraint("Coincident", 6, 2, 7, 1))
sketch6.addConstraint(Sketcher.Constraint("Coincident", 7, 2, 4, 1))
sketch6.addConstraint(Sketcher.Constraint("Coincident", 8, 2, 9, 1))
sketch6.addConstraint(Sketcher.Constraint("Coincident", 9, 2, 10, 1))
sketch6.addConstraint(Sketcher.Constraint("Coincident", 10, 2, 11, 1))
sketch6.addConstraint(Sketcher.Constraint("Coincident", 11, 2, 8, 1))
sketch6.addConstraint(Sketcher.Constraint("Coincident", 12, 2, 13, 1))
sketch6.addConstraint(Sketcher.Constraint("Coincident", 13, 2, 14, 1))
sketch6.addConstraint(Sketcher.Constraint("Coincident", 14, 2, 15, 1))
sketch6.addConstraint(Sketcher.Constraint("Coincident", 15, 2, 12, 1))
sketch6.addConstraint(Sketcher.Constraint("Coincident", 16, 2, 17, 1))
sketch6.addConstraint(Sketcher.Constraint("Coincident", 17, 2, 18, 1))
sketch6.addConstraint(Sketcher.Constraint("Coincident", 18, 2, 19, 1))
sketch6.addConstraint(Sketcher.Constraint("Coincident", 19, 2, 16, 1))
sketch6.addConstraint(Sketcher.Constraint("Coincident", 20, 2, 21, 1))
sketch6.addConstraint(Sketcher.Constraint("Coincident", 21, 2, 22, 1))
sketch6.addConstraint(Sketcher.Constraint("Coincident", 22, 2, 23, 1))
sketch6.addConstraint(Sketcher.Constraint("Coincident", 23, 2, 20, 1))
sketch6.addConstraint(Sketcher.Constraint("Coincident", 24, 2, 25, 1))
sketch6.addConstraint(Sketcher.Constraint("Coincident", 25, 2, 26, 1))
sketch6.addConstraint(Sketcher.Constraint("Coincident", 26, 2, 27, 1))
sketch6.addConstraint(Sketcher.Constraint("Coincident", 27, 2, 24, 1))
sketch6.addConstraint(Sketcher.Constraint("Coincident", 28, 2, 29, 1))
sketch6.addConstraint(Sketcher.Constraint("Coincident", 29, 2, 30, 1))
sketch6.addConstraint(Sketcher.Constraint("Coincident", 30, 2, 31, 1))
sketch6.addConstraint(Sketcher.Constraint("Coincident", 31, 2, 28, 1))
sketch6.addConstraint(Sketcher.Constraint("Coincident", 32, 2, 33, 1))
sketch6.addConstraint(Sketcher.Constraint("Coincident", 33, 2, 34, 1))
sketch6.addConstraint(Sketcher.Constraint("Coincident", 34, 2, 35, 1))
sketch6.addConstraint(Sketcher.Constraint("Coincident", 35, 2, 32, 1))
sketch6.addConstraint(Sketcher.Constraint("Coincident", 36, 2, 37, 1))
sketch6.addConstraint(Sketcher.Constraint("Coincident", 37, 2, 38, 1))
sketch6.addConstraint(Sketcher.Constraint("Coincident", 38, 2, 39, 1))
sketch6.addConstraint(Sketcher.Constraint("Coincident", 39, 2, 36, 1))
sketch6.addConstraint(Sketcher.Constraint("Vertical", 0))
sketch6.addConstraint(Sketcher.Constraint("Horizontal", 1))
sketch6.addConstraint(Sketcher.Constraint("Vertical", 2))
sketch6.addConstraint(Sketcher.Constraint("Horizontal", 3))
sketch6.addConstraint(Sketcher.Constraint("Vertical", 4))
sketch6.addConstraint(Sketcher.Constraint("Horizontal", 5))
sketch6.addConstraint(Sketcher.Constraint("Vertical", 6))
sketch6.addConstraint(Sketcher.Constraint("Horizontal", 7))
sketch6.addConstraint(Sketcher.Constraint("Vertical", 8))
sketch6.addConstraint(Sketcher.Constraint("Horizontal", 9))
sketch6.addConstraint(Sketcher.Constraint("Vertical", 10))
sketch6.addConstraint(Sketcher.Constraint("Horizontal", 11))
sketch6.addConstraint(Sketcher.Constraint("Vertical", 12))
sketch6.addConstraint(Sketcher.Constraint("Horizontal", 13))
sketch6.addConstraint(Sketcher.Constraint("Vertical", 14))
sketch6.addConstraint(Sketcher.Constraint("Horizontal", 15))
sketch6.addConstraint(Sketcher.Constraint("Vertical", 16))
sketch6.addConstraint(Sketcher.Constraint("Horizontal", 17))
sketch6.addConstraint(Sketcher.Constraint("Vertical", 18))
sketch6.addConstraint(Sketcher.Constraint("Horizontal", 19))
sketch6.addConstraint(Sketcher.Constraint("Vertical", 20))
sketch6.addConstraint(Sketcher.Constraint("Horizontal", 21))
sketch6.addConstraint(Sketcher.Constraint("Vertical", 22))
sketch6.addConstraint(Sketcher.Constraint("Horizontal", 23))
sketch6.addConstraint(Sketcher.Constraint("Vertical", 24))
sketch6.addConstraint(Sketcher.Constraint("Horizontal", 25))
sketch6.addConstraint(Sketcher.Constraint("Vertical", 26))
sketch6.addConstraint(Sketcher.Constraint("Horizontal", 27))
sketch6.addConstraint(Sketcher.Constraint("Vertical", 28))
sketch6.addConstraint(Sketcher.Constraint("Horizontal", 29))
sketch6.addConstraint(Sketcher.Constraint("Vertical", 30))
sketch6.addConstraint(Sketcher.Constraint("Horizontal", 31))
sketch6.addConstraint(Sketcher.Constraint("Vertical", 32))
sketch6.addConstraint(Sketcher.Constraint("Horizontal", 33))
sketch6.addConstraint(Sketcher.Constraint("Vertical", 34))
sketch6.addConstraint(Sketcher.Constraint("Horizontal", 35))
sketch6.addConstraint(Sketcher.Constraint("Vertical", 36))
sketch6.addConstraint(Sketcher.Constraint("Horizontal", 37))
sketch6.addConstraint(Sketcher.Constraint("Vertical", 38))
sketch6.addConstraint(Sketcher.Constraint("Horizontal", 39))
sketch6.addConstraint(Sketcher.Constraint("Symmetric", 3, 2, 8, 2, -1))
sketch6.addConstraint(Sketcher.Constraint("Symmetric", 1, 2, 10, 2, -1))
sketch6.addConstraint(Sketcher.Constraint("Symmetric", 15, 2, 20, 2, -1))
sketch6.addConstraint(Sketcher.Constraint("Symmetric", 13, 2, 22, 2, -1))
sketch6.addConstraint(Sketcher.Constraint("Symmetric", 27, 2, 28, 2, -1))
sketch6.addConstraint(Sketcher.Constraint("Symmetric", 25, 2, 30, 2, -1))
sketch6.addConstraint(Sketcher.Constraint("Symmetric", 35, 2, 36, 2, -1))
sketch6.addConstraint(Sketcher.Constraint("Symmetric", 33, 2, 38, 2, -1))
sketch6.addConstraint(Sketcher.Constraint("Horizontal", 1, 2, 12, 2))
sketch6.addConstraint(Sketcher.Constraint("Horizontal", 3, 2, 14, 2))
sketch6.addConstraint(Sketcher.Constraint("Horizontal", 5, 2, 16, 2))
sketch6.addConstraint(Sketcher.Constraint("Horizontal", 7, 2, 18, 2))
sketch6.addConstraint(Sketcher.Constraint("Horizontal", 25, 2, 32, 2))
sketch6.addConstraint(Sketcher.Constraint("Horizontal", 27, 2, 34, 2))
sketch6.addConstraint(Sketcher.Constraint("Vertical", 3, 2, 4, 2))
sketch6.addConstraint(Sketcher.Constraint("Vertical", 2, 2, 5, 2))
sketch6.addConstraint(Sketcher.Constraint("Vertical", 15, 2, 16, 2))
sketch6.addConstraint(Sketcher.Constraint("Vertical", 14, 2, 17, 2))
sketch6.addConstraint(Sketcher.Constraint("Equal", 11, 13))
sketch6.addConstraint(Sketcher.Constraint("Equal", 31, 33))
sketch6.addConstraint(Sketcher.Constraint("Equal", 2, 4))
sketch6.addConstraint(Sketcher.Constraint("Equal", 23, 24))
sketch6.addConstraint(Sketcher.Constraint("DistanceX", 1, 1, 1, 2, Q("2 mm")))
sketch6.addConstraint(Sketcher.Constraint("DistanceX", 25, 1, 25, 2, Q("5 mm")))
sketch6.addConstraint(Sketcher.Constraint("DistanceY", 0, 1, 0, 2, Q("7 mm")))
sketch6.addConstraint(Sketcher.Constraint("DistanceY", 0, 2, -1, 1, Q("12 mm")))
sketch6.addConstraint(Sketcher.Constraint("DistanceY", 24, 2, -1, 1, Q("8 mm")))
sketch6.addConstraint(Sketcher.Constraint("DistanceX", 24, 2, 0, 2, Q("10 mm")))
sketch6.addConstraint(Sketcher.Constraint("DistanceX", 13, 2, 32, 2, Q("5 mm")))
sketch6.addConstraint(Sketcher.Constraint("DistanceX", 0, 2, -1, 1, Q("30.2 mm")))
sketch6.addConstraint(Sketcher.Constraint("DistanceY", -1, 1, 4, 2, Q("3.5 mm")))
sketch6.addConstraint(Sketcher.Constraint("DistanceX", -1, 1, 12, 2, Q("29.2 mm")))
pocket5 = body.newObject("PartDesign::Pocket", "Pocket004")
pocket5.Profile = sketch6
pocket5.Length = 6
pocket5.Reversed = True

doc.recompute()
